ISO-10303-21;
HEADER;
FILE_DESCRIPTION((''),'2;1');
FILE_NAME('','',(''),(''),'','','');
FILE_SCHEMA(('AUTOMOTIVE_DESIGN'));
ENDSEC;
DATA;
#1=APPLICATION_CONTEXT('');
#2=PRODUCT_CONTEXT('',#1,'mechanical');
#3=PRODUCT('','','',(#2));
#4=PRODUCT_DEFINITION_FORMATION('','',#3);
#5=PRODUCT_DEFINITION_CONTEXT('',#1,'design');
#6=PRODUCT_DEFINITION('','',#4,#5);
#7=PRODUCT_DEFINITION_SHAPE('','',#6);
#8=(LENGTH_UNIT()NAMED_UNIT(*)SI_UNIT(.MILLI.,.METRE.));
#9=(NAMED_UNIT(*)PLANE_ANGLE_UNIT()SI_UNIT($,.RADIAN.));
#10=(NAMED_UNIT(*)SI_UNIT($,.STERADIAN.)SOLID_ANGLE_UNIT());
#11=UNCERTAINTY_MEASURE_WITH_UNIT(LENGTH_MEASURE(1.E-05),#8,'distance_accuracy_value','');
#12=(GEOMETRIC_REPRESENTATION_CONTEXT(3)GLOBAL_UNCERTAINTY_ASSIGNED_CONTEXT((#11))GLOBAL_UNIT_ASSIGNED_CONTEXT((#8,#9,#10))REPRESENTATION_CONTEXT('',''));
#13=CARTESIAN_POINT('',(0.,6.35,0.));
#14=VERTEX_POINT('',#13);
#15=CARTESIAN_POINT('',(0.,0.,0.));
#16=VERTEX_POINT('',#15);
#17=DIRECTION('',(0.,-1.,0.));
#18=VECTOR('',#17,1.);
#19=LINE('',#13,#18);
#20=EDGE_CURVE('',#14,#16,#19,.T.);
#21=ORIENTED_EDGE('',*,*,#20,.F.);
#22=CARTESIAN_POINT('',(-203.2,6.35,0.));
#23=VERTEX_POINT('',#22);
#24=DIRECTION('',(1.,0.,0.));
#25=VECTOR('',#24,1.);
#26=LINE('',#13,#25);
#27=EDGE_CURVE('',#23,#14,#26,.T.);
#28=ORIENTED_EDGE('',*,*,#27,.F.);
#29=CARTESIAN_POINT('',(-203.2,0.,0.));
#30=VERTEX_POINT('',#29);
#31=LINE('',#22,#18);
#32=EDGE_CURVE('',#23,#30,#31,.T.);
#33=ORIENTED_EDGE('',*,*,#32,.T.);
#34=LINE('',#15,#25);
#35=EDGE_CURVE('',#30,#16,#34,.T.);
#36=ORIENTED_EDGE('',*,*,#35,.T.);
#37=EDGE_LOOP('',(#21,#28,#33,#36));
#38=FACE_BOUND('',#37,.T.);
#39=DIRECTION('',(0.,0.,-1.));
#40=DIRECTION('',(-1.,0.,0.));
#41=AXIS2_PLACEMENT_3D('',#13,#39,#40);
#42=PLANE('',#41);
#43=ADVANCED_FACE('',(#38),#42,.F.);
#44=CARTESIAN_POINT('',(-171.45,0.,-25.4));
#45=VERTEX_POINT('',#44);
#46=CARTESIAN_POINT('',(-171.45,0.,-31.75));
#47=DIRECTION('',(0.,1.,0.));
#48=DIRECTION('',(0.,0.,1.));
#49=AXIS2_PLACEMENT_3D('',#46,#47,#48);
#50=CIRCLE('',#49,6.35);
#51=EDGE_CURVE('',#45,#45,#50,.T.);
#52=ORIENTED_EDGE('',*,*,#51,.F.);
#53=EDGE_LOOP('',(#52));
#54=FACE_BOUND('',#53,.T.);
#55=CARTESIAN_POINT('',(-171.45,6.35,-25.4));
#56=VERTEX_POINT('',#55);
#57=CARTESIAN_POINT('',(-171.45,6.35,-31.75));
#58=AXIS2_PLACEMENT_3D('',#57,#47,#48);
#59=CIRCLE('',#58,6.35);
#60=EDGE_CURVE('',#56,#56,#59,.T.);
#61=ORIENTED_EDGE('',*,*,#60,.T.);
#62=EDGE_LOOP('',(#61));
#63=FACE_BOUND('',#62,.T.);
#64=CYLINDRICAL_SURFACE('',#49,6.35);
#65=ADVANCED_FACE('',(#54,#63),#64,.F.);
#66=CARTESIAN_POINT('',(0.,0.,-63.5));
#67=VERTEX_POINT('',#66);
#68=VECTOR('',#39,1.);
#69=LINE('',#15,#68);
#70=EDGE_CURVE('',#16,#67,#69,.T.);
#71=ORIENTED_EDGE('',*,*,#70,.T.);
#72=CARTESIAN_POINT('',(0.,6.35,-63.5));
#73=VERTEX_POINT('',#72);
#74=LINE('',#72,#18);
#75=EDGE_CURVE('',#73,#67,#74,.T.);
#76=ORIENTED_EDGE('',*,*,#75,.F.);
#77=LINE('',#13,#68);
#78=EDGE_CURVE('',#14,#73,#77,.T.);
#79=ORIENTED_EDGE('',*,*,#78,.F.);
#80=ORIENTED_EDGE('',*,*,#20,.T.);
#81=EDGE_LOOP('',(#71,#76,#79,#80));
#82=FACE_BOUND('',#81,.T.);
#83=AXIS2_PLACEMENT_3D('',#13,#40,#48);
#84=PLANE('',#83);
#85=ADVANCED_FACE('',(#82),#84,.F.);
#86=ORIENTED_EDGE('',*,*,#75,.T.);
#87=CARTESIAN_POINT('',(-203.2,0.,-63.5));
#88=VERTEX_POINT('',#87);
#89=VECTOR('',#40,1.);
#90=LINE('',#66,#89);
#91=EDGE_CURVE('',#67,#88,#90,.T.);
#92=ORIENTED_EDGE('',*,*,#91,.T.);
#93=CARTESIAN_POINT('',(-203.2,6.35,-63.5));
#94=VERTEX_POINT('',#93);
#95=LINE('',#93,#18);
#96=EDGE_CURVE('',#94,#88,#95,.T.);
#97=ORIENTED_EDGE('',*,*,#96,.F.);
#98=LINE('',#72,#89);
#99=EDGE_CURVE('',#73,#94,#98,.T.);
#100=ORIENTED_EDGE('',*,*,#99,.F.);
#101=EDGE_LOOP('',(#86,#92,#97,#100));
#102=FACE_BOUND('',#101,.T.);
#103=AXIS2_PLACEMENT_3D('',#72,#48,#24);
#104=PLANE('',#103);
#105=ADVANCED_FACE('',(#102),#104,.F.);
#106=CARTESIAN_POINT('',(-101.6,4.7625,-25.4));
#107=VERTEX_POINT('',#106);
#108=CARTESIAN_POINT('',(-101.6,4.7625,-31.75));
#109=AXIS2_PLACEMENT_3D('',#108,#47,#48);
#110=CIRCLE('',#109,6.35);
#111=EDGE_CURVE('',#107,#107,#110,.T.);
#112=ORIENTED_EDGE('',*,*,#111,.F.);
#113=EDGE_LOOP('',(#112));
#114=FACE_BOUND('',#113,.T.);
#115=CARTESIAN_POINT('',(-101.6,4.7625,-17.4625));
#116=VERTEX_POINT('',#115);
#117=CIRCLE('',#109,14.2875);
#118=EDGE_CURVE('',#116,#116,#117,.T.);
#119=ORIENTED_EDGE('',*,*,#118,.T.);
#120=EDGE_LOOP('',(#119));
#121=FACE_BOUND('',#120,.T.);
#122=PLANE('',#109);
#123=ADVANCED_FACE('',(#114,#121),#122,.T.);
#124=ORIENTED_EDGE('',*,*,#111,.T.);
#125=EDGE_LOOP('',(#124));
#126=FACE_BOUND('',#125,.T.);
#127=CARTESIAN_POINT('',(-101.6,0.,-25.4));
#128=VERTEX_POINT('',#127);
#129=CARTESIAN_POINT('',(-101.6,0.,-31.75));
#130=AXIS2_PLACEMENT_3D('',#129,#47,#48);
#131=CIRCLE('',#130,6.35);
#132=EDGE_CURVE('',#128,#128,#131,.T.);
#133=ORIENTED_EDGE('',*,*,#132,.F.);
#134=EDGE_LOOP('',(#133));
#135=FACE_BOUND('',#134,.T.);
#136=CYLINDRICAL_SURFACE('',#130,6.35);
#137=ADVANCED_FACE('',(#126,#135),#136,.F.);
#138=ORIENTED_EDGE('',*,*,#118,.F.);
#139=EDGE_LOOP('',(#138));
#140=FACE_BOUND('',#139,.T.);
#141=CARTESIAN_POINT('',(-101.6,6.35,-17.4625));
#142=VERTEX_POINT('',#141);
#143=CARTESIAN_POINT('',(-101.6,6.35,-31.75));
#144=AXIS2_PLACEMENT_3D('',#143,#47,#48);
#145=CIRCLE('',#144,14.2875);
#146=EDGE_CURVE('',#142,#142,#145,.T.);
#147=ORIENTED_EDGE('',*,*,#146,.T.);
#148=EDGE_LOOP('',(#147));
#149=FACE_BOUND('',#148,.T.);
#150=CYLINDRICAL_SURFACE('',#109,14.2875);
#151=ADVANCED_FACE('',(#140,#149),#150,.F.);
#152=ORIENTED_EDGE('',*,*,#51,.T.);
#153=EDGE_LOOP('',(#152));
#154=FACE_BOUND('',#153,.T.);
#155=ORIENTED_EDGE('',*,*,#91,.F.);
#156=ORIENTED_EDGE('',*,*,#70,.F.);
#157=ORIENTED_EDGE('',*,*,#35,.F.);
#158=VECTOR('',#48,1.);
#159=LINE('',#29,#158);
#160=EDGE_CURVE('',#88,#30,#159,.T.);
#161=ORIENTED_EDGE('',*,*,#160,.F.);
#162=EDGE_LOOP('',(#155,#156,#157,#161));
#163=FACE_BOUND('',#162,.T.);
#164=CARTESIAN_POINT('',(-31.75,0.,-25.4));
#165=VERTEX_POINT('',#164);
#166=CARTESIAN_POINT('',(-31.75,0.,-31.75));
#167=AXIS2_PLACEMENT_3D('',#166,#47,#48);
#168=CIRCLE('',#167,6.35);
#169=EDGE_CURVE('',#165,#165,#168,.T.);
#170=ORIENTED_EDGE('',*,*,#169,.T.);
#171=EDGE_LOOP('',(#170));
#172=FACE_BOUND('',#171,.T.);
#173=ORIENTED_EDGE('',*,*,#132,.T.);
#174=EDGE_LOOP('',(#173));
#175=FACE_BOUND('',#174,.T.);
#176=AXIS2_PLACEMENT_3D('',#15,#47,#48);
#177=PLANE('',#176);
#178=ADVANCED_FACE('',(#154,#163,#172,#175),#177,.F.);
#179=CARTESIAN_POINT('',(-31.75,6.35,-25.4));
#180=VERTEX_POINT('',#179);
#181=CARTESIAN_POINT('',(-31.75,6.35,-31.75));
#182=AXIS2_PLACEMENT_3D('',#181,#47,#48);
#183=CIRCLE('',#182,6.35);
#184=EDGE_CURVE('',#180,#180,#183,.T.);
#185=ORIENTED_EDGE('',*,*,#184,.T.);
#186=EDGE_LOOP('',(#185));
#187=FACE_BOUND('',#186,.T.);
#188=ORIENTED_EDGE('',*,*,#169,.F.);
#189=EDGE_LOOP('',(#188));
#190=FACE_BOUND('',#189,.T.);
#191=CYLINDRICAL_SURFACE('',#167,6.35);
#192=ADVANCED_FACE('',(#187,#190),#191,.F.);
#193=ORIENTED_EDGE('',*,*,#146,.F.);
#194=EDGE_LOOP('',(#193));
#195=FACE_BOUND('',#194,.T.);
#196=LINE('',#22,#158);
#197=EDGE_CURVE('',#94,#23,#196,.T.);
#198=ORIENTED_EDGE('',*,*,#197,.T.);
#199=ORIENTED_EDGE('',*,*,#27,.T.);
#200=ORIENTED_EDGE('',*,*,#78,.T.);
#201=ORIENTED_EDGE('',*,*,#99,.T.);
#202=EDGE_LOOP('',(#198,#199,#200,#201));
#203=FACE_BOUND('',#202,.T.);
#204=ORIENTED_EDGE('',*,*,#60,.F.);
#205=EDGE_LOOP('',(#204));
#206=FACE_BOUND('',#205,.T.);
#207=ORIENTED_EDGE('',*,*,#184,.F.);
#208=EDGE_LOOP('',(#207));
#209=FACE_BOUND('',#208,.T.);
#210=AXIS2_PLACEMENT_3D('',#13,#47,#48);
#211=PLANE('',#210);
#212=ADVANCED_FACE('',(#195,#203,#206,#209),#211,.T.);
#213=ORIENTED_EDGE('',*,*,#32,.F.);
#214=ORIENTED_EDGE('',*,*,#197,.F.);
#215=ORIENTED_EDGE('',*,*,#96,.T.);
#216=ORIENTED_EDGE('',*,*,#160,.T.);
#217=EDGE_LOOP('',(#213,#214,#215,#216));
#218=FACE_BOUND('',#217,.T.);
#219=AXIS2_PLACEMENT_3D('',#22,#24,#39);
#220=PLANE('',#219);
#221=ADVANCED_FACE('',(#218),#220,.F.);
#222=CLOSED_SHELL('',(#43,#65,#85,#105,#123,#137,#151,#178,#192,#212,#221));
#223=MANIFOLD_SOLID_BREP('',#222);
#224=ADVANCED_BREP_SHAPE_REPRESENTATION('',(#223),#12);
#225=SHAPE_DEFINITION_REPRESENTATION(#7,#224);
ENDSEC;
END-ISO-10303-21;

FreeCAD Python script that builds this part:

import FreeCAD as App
import Part
import Sketcher
from FreeCAD import Vector
Q = App.Units.Quantity

doc = App.newDocument("Part")
body = doc.addObject("PartDesign::Body", "Body")

# Sketch on XZ plane
sketch1 = body.newObject("Sketcher::SketchObject", "Sketch")
sketch1.AttachmentSupport = (doc.getObject("XZ_Plane"), [""])
sketch1.MapMode = "FlatFace"
sketch1.addGeometry([
    Part.LineSegment(Vector(-203, -64, 0), Vector(-203, 0, 0)),
    Part.LineSegment(Vector(-203, 0, 0), Vector(0, 0, 0)),
    Part.LineSegment(Vector(0, 0, 0), Vector(0, -64, 0)),
    Part.LineSegment(Vector(0, -64, 0), Vector(-203, -64, 0)),
], False)
sketch1.addConstraint([
    Sketcher.Constraint("Coincident", 0, 2, 1, 1),
    Sketcher.Constraint("Coincident", 1, 2, 2, 1),
    Sketcher.Constraint("Coincident", 2, 2, 3, 1),
    Sketcher.Constraint("Coincident", 3, 2, 0, 1),
    Sketcher.Constraint("Vertical", 0),
    Sketcher.Constraint("Horizontal", 1),
    Sketcher.Constraint("Vertical", 2),
    Sketcher.Constraint("Horizontal", 3),
    Sketcher.Constraint("Coincident", 1, 2, -1, 1),
    Sketcher.Constraint("DistanceX", 1, 1, 1, 2, Q("8 in")),
    Sketcher.Constraint("DistanceY", 0, 1, 0, 2, Q("2.5 in")),
])
pad1 = body.newObject("PartDesign::Pad", "Pad")
pad1.Profile = sketch1
pad1.Length = Q("0.25 in")
pad1.Reversed = True

# Sketch on XZ plane
sketch2 = body.newObject("Sketcher::SketchObject", "Sketch001")
sketch2.AttachmentSupport = (doc.getObject("XZ_Plane"), [""])
sketch2.MapMode = "FlatFace"
sketch2.AttachmentOffset = App.Placement(Vector(0, 0, -0.25 * 25.4), App.Rotation())
sketch2.addGeometry(Part.Circle(Vector(-102, -32, 0), Vector(0, 0, 1), 14), False)
sketch2.addConstraint([
    Sketcher.Constraint("Diameter", 0, Q("1.125 in")),
    Sketcher.Constraint("DistanceX", 0, 3, -1, 1, Q("4 in")),
    Sketcher.Constraint("DistanceY", 0, 3, -1, 1, Q("1.25 in")),
])
pocket1 = body.newObject("PartDesign::Pocket", "Pocket")
pocket1.Profile = sketch2
pocket1.Length = Q("0.0625 in")
pocket1.Reversed = True

# Sketch on XZ plane
sketch3 = body.newObject("Sketcher::SketchObject", "Sketch002")
sketch3.AttachmentSupport = (doc.getObject("XZ_Plane"), [""])
sketch3.MapMode = "FlatFace"
sketch3.AttachmentOffset = App.Placement(Vector(0, 0, -0.1875 * 25.4), App.Rotation())
sketch3.addGeometry(Part.Circle(Vector(-102, -32, 0), Vector(0, 0, 1), 6), False)
sketch3.addConstraint([
    Sketcher.Constraint("Diameter", 0, Q("0.5 in")),
    Sketcher.Constraint("DistanceX", 0, 3, -1, 1, Q("4 in")),
    Sketcher.Constraint("DistanceY", 0, 3, -1, 1, Q("1.25 in")),
])
pocket2 = body.newObject("PartDesign::Pocket", "Pocket001")
pocket2.Profile = sketch3
pocket2.Type = "ThroughAll"
pocket2.Reversed = True

# Sketch on XZ plane
sketch4 = body.newObject("Sketcher::SketchObject", "Sketch003")
sketch4.AttachmentSupport = (doc.getObject("XZ_Plane"), [""])
sketch4.MapMode = "FlatFace"
sketch4.AttachmentOffset = App.Placement(Vector(0, 0, -0.25 * 25.4), App.Rotation())
sketch4.addGeometry([
    Part.Circle(Vector(-171, -32, 0), Vector(0, 0, 1), 6),
    Part.Circle(Vector(-32, -32, 0), Vector(0, 0, 1), 6),
], False)
sketch4.addConstraint([
    Sketcher.Constraint("Equal", 0, 1),
    Sketcher.Constraint("Horizontal", 0, 3, 1, 3),
    Sketcher.Constraint("Diameter", 0, Q("0.5 in")),
    Sketcher.Constraint("DistanceX", 0, 3, 1, 3, Q("5.5 in")),
    Sketcher.Constraint("DistanceX", 0, 3, -1, 1, Q("6.75 in")),
    Sketcher.Constraint("DistanceY", 0, 3, -1, 1, Q("1.25 in")),
])
pocket3 = body.newObject("PartDesign::Pocket", "Pocket002")
pocket3.Profile = sketch4
pocket3.Type = "ThroughAll"
pocket3.Reversed = True

doc.recompute()
